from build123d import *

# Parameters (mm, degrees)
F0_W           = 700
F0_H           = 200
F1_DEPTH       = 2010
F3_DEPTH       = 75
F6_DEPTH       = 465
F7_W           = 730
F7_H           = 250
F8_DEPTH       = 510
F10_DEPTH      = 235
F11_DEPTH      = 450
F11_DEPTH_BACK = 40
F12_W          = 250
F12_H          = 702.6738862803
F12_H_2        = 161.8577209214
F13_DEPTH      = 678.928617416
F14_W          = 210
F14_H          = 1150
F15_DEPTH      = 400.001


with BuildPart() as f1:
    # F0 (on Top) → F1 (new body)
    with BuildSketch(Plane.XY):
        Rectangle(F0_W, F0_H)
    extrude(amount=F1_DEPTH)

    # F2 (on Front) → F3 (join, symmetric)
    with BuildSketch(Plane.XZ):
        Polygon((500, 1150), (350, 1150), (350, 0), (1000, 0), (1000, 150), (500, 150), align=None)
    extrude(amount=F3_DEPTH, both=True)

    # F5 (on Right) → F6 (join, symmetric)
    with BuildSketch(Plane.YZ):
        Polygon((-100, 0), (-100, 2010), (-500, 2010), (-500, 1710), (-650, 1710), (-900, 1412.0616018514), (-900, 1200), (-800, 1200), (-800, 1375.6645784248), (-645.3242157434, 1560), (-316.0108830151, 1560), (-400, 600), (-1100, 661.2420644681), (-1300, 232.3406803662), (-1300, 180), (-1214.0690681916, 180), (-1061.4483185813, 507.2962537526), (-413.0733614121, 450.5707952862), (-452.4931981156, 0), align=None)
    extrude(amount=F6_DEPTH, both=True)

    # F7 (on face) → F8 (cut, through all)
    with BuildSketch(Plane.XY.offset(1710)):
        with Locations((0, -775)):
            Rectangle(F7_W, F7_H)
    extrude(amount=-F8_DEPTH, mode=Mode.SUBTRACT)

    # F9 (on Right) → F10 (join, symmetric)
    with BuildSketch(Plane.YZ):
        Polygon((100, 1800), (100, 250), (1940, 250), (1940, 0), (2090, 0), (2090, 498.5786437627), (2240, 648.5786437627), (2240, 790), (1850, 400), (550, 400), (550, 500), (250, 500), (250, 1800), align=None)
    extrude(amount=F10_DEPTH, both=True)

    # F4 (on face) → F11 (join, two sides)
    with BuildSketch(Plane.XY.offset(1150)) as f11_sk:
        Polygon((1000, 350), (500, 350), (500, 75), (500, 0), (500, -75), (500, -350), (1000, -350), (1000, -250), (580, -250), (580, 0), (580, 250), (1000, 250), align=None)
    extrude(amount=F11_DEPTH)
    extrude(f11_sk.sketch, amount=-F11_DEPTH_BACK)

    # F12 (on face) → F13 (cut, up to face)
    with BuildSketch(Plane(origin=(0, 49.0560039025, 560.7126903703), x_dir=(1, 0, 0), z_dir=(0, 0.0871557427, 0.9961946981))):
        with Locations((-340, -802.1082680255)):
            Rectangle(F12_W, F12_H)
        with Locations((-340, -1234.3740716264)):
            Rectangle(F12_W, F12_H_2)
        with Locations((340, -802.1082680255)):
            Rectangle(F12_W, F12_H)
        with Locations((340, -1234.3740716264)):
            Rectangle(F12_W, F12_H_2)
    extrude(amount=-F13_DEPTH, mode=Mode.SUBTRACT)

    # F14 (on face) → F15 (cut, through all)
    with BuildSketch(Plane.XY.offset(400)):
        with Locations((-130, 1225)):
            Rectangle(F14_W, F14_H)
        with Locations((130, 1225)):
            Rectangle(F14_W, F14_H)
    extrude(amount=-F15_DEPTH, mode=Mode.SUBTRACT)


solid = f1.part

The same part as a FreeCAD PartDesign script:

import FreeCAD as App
import Part
import Sketcher
from FreeCAD import Vector
Q = App.Units.Quantity

doc = App.newDocument("Part")
body = doc.addObject("PartDesign::Body", "Body")

sketch1 = body.newObject("Sketcher::SketchObject", "Sketch")
sketch1.AttachmentSupport = (doc.getObject("XY_Plane"), [""])
sketch1.MapMode = "FlatFace"
sketch1.addGeometry([
    Part.LineSegment(Vector(-350, 100, 0), Vector(-350, -100, 0)),
    Part.LineSegment(Vector(-350, -100, 0), Vector(350, -100, 0)),
    Part.LineSegment(Vector(350, -100, 0), Vector(350, 100, 0)),
    Part.LineSegment(Vector(350, 100, 0), Vector(-350, 100, 0)),
], False)
sketch1.addConstraint([
    Sketcher.Constraint("Coincident", 0, 2, 1, 1),
    Sketcher.Constraint("Coincident", 1, 2, 2, 1),
    Sketcher.Constraint("Coincident", 2, 2, 3, 1),
    Sketcher.Constraint("Coincident", 3, 2, 0, 1),
    Sketcher.Constraint("Vertical", 0),
    Sketcher.Constraint("Horizontal", 1),
    Sketcher.Constraint("Vertical", 2),
    Sketcher.Constraint("Horizontal", 3),
    Sketcher.Constraint("Symmetric", 0, 2, 2, 2, -1, 1),
    Sketcher.Constraint("DistanceX", 1, 1, 1, 2, 700.0),
    Sketcher.Constraint("DistanceY", 0, 2, 0, 1, 200.0),
])
pad1 = body.newObject("PartDesign::Pad", "Pad")
pad1.Profile = sketch1
pad1.Length = 2010

sketch2 = body.newObject("Sketcher::SketchObject", "Sketch001")
sketch2.AttachmentSupport = (doc.getObject("XZ_Plane"), [""])
sketch2.MapMode = "FlatFace"
sketch2.addGeometry([
    Part.LineSegment(Vector(500, 1150, 0), Vector(350, 1150, 0)),
    Part.LineSegment(Vector(350, 1150, 0), Vector(350, 0, 0)),
    Part.LineSegment(Vector(350, 0, 0), Vector(1000, 0, 0)),
    Part.LineSegment(Vector(1000, 0, 0), Vector(1000, 150, 0)),
    Part.LineSegment(Vector(1000, 150, 0), Vector(500, 150, 0)),
    Part.LineSegment(Vector(500, 150, 0), Vector(500, 1150, 0)),
], False)
sketch2.addConstraint([
    Sketcher.Constraint("Coincident", 0, 2, 1, 1),
    Sketcher.Constraint("Coincident", 1, 2, 2, 1),
    Sketcher.Constraint("Coincident", 2, 2, 3, 1),
    Sketcher.Constraint("Coincident", 3, 2, 4, 1),
    Sketcher.Constraint("Coincident", 4, 2, 5, 1),
    Sketcher.Constraint("Coincident", 5, 2, 0, 1),
    Sketcher.Constraint("Horizontal", 0),
    Sketcher.Constraint("Vertical", 1),
    Sketcher.Constraint("Horizontal", 2),
    Sketcher.Constraint("Vertical", 3),
    Sketcher.Constraint("Horizontal", 4),
    Sketcher.Constraint("Vertical", 5),
    Sketcher.Constraint("PointOnObject", 1, 2, -1),
    Sketcher.Constraint("Equal", 0, 3),
    Sketcher.Constraint("DistanceX", 0, 2, 0, 1, 150.0),
    Sketcher.Constraint("DistanceX", 2, 1, 2, 2, 650.0),
    Sketcher.Constraint("DistanceY", 1, 2, 1, 1, 1150.0),
    Sketcher.Constraint("DistanceX", -1, 1, 0, 2, 350.0),
])
pad2 = body.newObject("PartDesign::Pad", "Pad001")
pad2.Profile = sketch2
pad2.Length = 150
pad2.Midplane = True

sketch3 = body.newObject("Sketcher::SketchObject", "Sketch002")
sketch3.AttachmentSupport = (doc.getObject("YZ_Plane"), [""])
sketch3.MapMode = "FlatFace"
sketch3.addGeometry([
    Part.LineSegment(Vector(-100, 0, 0), Vector(-100, 2010, 0)),
    Part.LineSegment(Vector(-100, 2010, 0), Vector(-500, 2010, 0)),
    Part.LineSegment(Vector(-500, 2010, 0), Vector(-500, 1710, 0)),
    Part.LineSegment(Vector(-500, 1710, 0), Vector(-650, 1710, 0)),
    Part.LineSegment(Vector(-650, 1710, 0), Vector(-900, 1412.061602, 0)),
    Part.LineSegment(Vector(-900, 1412.061602, 0), Vector(-900, 1200, 0)),
    Part.LineSegment(Vector(-900, 1200, 0), Vector(-800, 1200, 0)),
    Part.LineSegment(Vector(-800, 1200, 0), Vector(-800, 1375.664578, 0)),
    Part.LineSegment(Vector(-800, 1375.664578, 0), Vector(-645.324216, 1560, 0)),
    Part.LineSegment(Vector(-645.324216, 1560, 0), Vector(-316.010883, 1560, 0)),
    Part.LineSegment(Vector(-316.010883, 1560, 0), Vector(-400, 600, 0)),
    Part.LineSegment(Vector(-400, 600, 0), Vector(-1100, 661.242064, 0)),
    Part.LineSegment(Vector(-1100, 661.242064, 0), Vector(-1300, 232.34068, 0)),
    Part.LineSegment(Vector(-1300, 232.34068, 0), Vector(-1300, 180, 0)),
    Part.LineSegment(Vector(-1300, 180, 0), Vector(-1214.069068, 180, 0)),
    Part.LineSegment(Vector(-1214.069068, 180, 0), Vector(-1061.448319, 507.296254, 0)),
    Part.LineSegment(Vector(-1061.448319, 507.296254, 0), Vector(-413.073361, 450.570795, 0)),
    Part.LineSegment(Vector(-413.073361, 450.570795, 0), Vector(-452.493198, 0, 0)),
    Part.LineSegment(Vector(-452.493198, 0, 0), Vector(-100, 0, 0)),
], False)
sketch3.addConstraint([
    Sketcher.Constraint("Coincident", 0, 2, 1, 1),
    Sketcher.Constraint("Coincident", 1, 2, 2, 1),
    Sketcher.Constraint("Coincident", 2, 2, 3, 1),
    Sketcher.Constraint("Coincident", 3, 2, 4, 1),
    Sketcher.Constraint("Coincident", 4, 2, 5, 1),
    Sketcher.Constraint("Coincident", 5, 2, 6, 1),
    Sketcher.Constraint("Coincident", 6, 2, 7, 1),
    Sketcher.Constraint("Coincident", 7, 2, 8, 1),
    Sketcher.Constraint("Coincident", 8, 2, 9, 1),
    Sketcher.Constraint("Coincident", 9, 2, 10, 1),
    Sketcher.Constraint("Coincident", 10, 2, 11, 1),
    Sketcher.Constraint("Coincident", 11, 2, 12, 1),
    Sketcher.Constraint("Coincident", 12, 2, 13, 1),
    Sketcher.Constraint("Coincident", 13, 2, 14, 1),
    Sketcher.Constraint("Coincident", 14, 2, 15, 1),
    Sketcher.Constraint("Coincident", 15, 2, 16, 1),
    Sketcher.Constraint("Coincident", 16, 2, 17, 1),
    Sketcher.Constraint("Coincident", 17, 2, 18, 1),
    Sketcher.Constraint("Coincident", 18, 2, 0, 1),
    Sketcher.Constraint("Vertical", 0),
    Sketcher.Constraint("Horizontal", 1),
    Sketcher.Constraint("Vertical", 2),
    Sketcher.Constraint("Horizontal", 3),
    Sketcher.Constraint("Vertical", 5),
    Sketcher.Constraint("Horizontal", 6),
    Sketcher.Constraint("Vertical", 7),
    Sketcher.Constraint("Horizontal", 9),
    Sketcher.Constraint("Vertical", 13),
    Sketcher.Constraint("Horizontal", 14),
    Sketcher.Constraint("Horizontal", 18),
    Sketcher.Constraint("PointOnObject", 17, 2, -1),
    Sketcher.Constraint("Parallel", 4, 8),
    Sketcher.Constraint("Perpendicular", 10, 11),
    Sketcher.Constraint("Parallel", 12, 15),
    Sketcher.Constraint("Parallel", 11, 16),
    Sketcher.Constraint("Perpendicular", 16, 17),
    Sketcher.Constraint("DistanceX", 1, 2, 1, 1, 400.0),
    Sketcher.Constraint("DistanceX", 3, 2, 3, 1, 150.0),
    Sketcher.Constraint("DistanceX", 6, 1, 6, 2, 100.0),
    Sketcher.Constraint("DistanceY", 0, 1, 0, 2, 2010.0),
    Sketcher.Constraint("DistanceY", 2, 2, 2, 1, 300.0),
    Sketcher.Constraint("Angle", 4, Q("-130 deg")),
    Sketcher.Constraint("Angle", 10, Q("-95 deg")),
    Sketcher.Constraint("Angle", 12, Q("-115 deg")),
    Sketcher.Constraint("DistanceX", 0, 2, -1, 1, 100.0),
    Sketcher.Constraint("DistanceX", 4, 2, -1, 1, 900.0),
    Sketcher.Constraint("DistanceY", -1, 1, 5, 2, 1200.0),
    Sketcher.Constraint("DistanceY", -1, 1, 8, 2, 1560.0),
    Sketcher.Constraint("DistanceX", 10, 2, -1, 1, 400.0),
    Sketcher.Constraint("DistanceY", -1, 1, 10, 2, 600.0),
    Sketcher.Constraint("DistanceX", 11, 2, -1, 1, 1100.0),
    Sketcher.Constraint("DistanceX", 12, 2, -1, 1, 1300.0),
    Sketcher.Constraint("DistanceY", -1, 1, 13, 2, 180.0),
    Sketcher.Constraint("DistanceX", 18, 1, 18, 2, 352.493198),
    Sketcher.Constraint("DistanceX", 14, 1, 14, 2, 85.930932),
    Sketcher.Constraint("DistanceY", 7, 1, 7, 2, 175.664578),
    Sketcher.Constraint("Distance", 15, 361.131459),
])
pad3 = body.newObject("PartDesign::Pad", "Pad002")
pad3.Profile = sketch3
pad3.Length = 930
pad3.Midplane = True

sketch4 = body.newObject("Sketcher::SketchObject", "Sketch003")
sketch4.AttachmentSupport = (doc.getObject("XY_Plane"), [""])
sketch4.MapMode = "FlatFace"
sketch4.AttachmentOffset = App.Placement(Vector(0, 0, 1710), App.Rotation())
sketch4.addGeometry([
    Part.LineSegment(Vector(-365, -650, 0), Vector(-365, -900, 0)),
    Part.LineSegment(Vector(-365, -900, 0), Vector(365, -900, 0)),
    Part.LineSegment(Vector(365, -900, 0), Vector(365, -650, 0)),
    Part.LineSegment(Vector(365, -650, 0), Vector(-365, -650, 0)),
], False)
sketch4.addConstraint([
    Sketcher.Constraint("Coincident", 0, 2, 1, 1),
    Sketcher.Constraint("Coincident", 1, 2, 2, 1),
    Sketcher.Constraint("Coincident", 2, 2, 3, 1),
    Sketcher.Constraint("Coincident", 3, 2, 0, 1),
    Sketcher.Constraint("Vertical", 0),
    Sketcher.Constraint("Horizontal", 1),
    Sketcher.Constraint("Vertical", 2),
    Sketcher.Constraint("Horizontal", 3),
    Sketcher.Constraint("DistanceX", 1, 1, 1, 2, 730.0),
    Sketcher.Constraint("DistanceY", 0, 2, 0, 1, 250.0),
    Sketcher.Constraint("DistanceX", 0, 2, -1, 1, 365.0),
    Sketcher.Constraint("DistanceY", 0, 2, -1, 1, 900.0),
])
pocket1 = body.newObject("PartDesign::Pocket", "Pocket")
pocket1.Profile = sketch4
pocket1.Length = 510

sketch5 = body.newObject("Sketcher::SketchObject", "Sketch004")
sketch5.AttachmentSupport = (doc.getObject("YZ_Plane"), [""])
sketch5.MapMode = "FlatFace"
sketch5.addGeometry([
    Part.LineSegment(Vector(100, 1800, 0), Vector(100, 250, 0)),
    Part.LineSegment(Vector(100, 250, 0), Vector(1940, 250, 0)),
    Part.LineSegment(Vector(1940, 250, 0), Vector(1940, 0, 0)),
    Part.LineSegment(Vector(1940, 0, 0), Vector(2090, 0, 0)),
    Part.LineSegment(Vector(2090, 0, 0), Vector(2090, 498.578644, 0)),
    Part.LineSegment(Vector(2090, 498.578644, 0), Vector(2240, 648.578644, 0)),
    Part.LineSegment(Vector(2240, 648.578644, 0), Vector(2240, 790, 0)),
    Part.LineSegment(Vector(2240, 790, 0), Vector(1850, 400, 0)),
    Part.LineSegment(Vector(1850, 400, 0), Vector(550, 400, 0)),
    Part.LineSegment(Vector(550, 400, 0), Vector(550, 500, 0)),
    Part.LineSegment(Vector(550, 500, 0), Vector(250, 500, 0)),
    Part.LineSegment(Vector(250, 500, 0), Vector(250, 1800, 0)),
    Part.LineSegment(Vector(250, 1800, 0), Vector(100, 1800, 0)),
], False)
sketch5.addConstraint([
    Sketcher.Constraint("Coincident", 0, 2, 1, 1),
    Sketcher.Constraint("Coincident", 1, 2, 2, 1),
    Sketcher.Constraint("Coincident", 2, 2, 3, 1),
    Sketcher.Constraint("Coincident", 3, 2, 4, 1),
    Sketcher.Constraint("Coincident", 4, 2, 5, 1),
    Sketcher.Constraint("Coincident", 5, 2, 6, 1),
    Sketcher.Constraint("Coincident", 6, 2, 7, 1),
    Sketcher.Constraint("Coincident", 7, 2, 8, 1),
    Sketcher.Constraint("Coincident", 8, 2, 9, 1),
    Sketcher.Constraint("Coincident", 9, 2, 10, 1),
    Sketcher.Constraint("Coincident", 10, 2, 11, 1),
    Sketcher.Constraint("Coincident", 11, 2, 12, 1),
    Sketcher.Constraint("Coincident", 12, 2, 0, 1),
    Sketcher.Constraint("Vertical", 0),
    Sketcher.Constraint("Horizontal", 1),
    Sketcher.Constraint("Vertical", 2),
    Sketcher.Constraint("Horizontal", 3),
    Sketcher.Constraint("Vertical", 4),
    Sketcher.Constraint("Vertical", 6),
    Sketcher.Constraint("Horizontal", 8),
    Sketcher.Constraint("Vertical", 9),
    Sketcher.Constraint("Horizontal", 10),
    Sketcher.Constraint("Vertical", 11),
    Sketcher.Constraint("Horizontal", 12),
    Sketcher.Constraint("PointOnObject", 2, 2, -1),
    Sketcher.Constraint("Parallel", 5, 7),
    Sketcher.Constraint("Equal", 3, 12),
    Sketcher.Constraint("Equal", 8, 11),
    Sketcher.Constraint("DistanceX", 1, 1, 1, 2, 1840.0),
    Sketcher.Constraint("DistanceX", 3, 1, 3, 2, 150.0),
    Sketcher.Constraint("DistanceX", 8, 2, 8, 1, 1300.0),
    Sketcher.Constraint("DistanceX", 10, 2, 10, 1, 300.0),
    Sketcher.Constraint("DistanceY", 0, 2, 0, 1, 1550.0),
    Sketcher.Constraint("DistanceY", 2, 2, 2, 1, 250.0),
    Sketcher.Constraint("DistanceY", 9, 1, 9, 2, 100.0),
    Sketcher.Constraint("Angle", 5, Q("45 deg")),
    Sketcher.Constraint("DistanceX", -1, 1, 0, 2, 100.0),
    Sketcher.Constraint("DistanceX", -1, 1, 5, 2, 2240.0),
    Sketcher.Constraint("DistanceY", 4, 1, 4, 2, 498.578644),
])
pad4 = body.newObject("PartDesign::Pad", "Pad003")
pad4.Profile = sketch5
pad4.Length = 470
pad4.Midplane = True

sketch6 = body.newObject("Sketcher::SketchObject", "Sketch005")
sketch6.AttachmentSupport = (doc.getObject("XY_Plane"), [""])
sketch6.MapMode = "FlatFace"
sketch6.AttachmentOffset = App.Placement(Vector(0, 0, 1150), App.Rotation())
sketch6.addGeometry([
    Part.LineSegment(Vector(1000, 350, 0), Vector(500, 350, 0)),
    Part.LineSegment(Vector(500, 350, 0), Vector(500, -350, 0)),
    Part.LineSegment(Vector(500, -350, 0), Vector(1000, -350, 0)),
    Part.LineSegment(Vector(1000, -350, 0), Vector(1000, -250, 0)),
    Part.LineSegment(Vector(1000, -250, 0), Vector(580, -250, 0)),
    Part.LineSegment(Vector(580, -250, 0), Vector(580, 250, 0)),
    Part.LineSegment(Vector(580, 250, 0), Vector(1000, 250, 0)),
    Part.LineSegment(Vector(1000, 250, 0), Vector(1000, 350, 0)),
], False)
sketch6.addConstraint([
    Sketcher.Constraint("Coincident", 0, 2, 1, 1),
    Sketcher.Constraint("Coincident", 1, 2, 2, 1),
    Sketcher.Constraint("Coincident", 2, 2, 3, 1),
    Sketcher.Constraint("Coincident", 3, 2, 4, 1),
    Sketcher.Constraint("Coincident", 4, 2, 5, 1),
    Sketcher.Constraint("Coincident", 5, 2, 6, 1),
    Sketcher.Constraint("Coincident", 6, 2, 7, 1),
    Sketcher.Constraint("Coincident", 7, 2, 0, 1),
    Sketcher.Constraint("Horizontal", 0),
    Sketcher.Constraint("Vertical", 1),
    Sketcher.Constraint("Horizontal", 2),
    Sketcher.Constraint("Vertical", 3),
    Sketcher.Constraint("Horizontal", 4),
    Sketcher.Constraint("Vertical", 5),
    Sketcher.Constraint("Horizontal", 6),
    Sketcher.Constraint("Vertical", 7),
    Sketcher.Constraint("Symmetric", 3, 2, 6, 2, -1),
    Sketcher.Constraint("Equal", 2, 5),
    Sketcher.Constraint("Equal", 3, 7),
    Sketcher.Constraint("DistanceX", 0, 2, 0, 1, 500.0),
    Sketcher.Constraint("DistanceX", 4, 2, 4, 1, 420.0),
    Sketcher.Constraint("DistanceY", 1, 2, 1, 1, 700.0),
    Sketcher.Constraint("DistanceX", -1, 1, 0, 2, 500.0),
])
pad5 = body.newObject("PartDesign::Pad", "Pad004")
pad5.Profile = sketch6
pad5.Type = "TwoLengths"
pad5.Length = 450
pad5.Length2 = 40

sketch7 = body.newObject("Sketcher::SketchObject", "Sketch006")
sketch7.Placement = App.Placement(Vector(0, 49.056004, 560.71269), App.Rotation(Vector(1, 0, 0), Vector(0, 0.996194698, -0.087155743), Vector(0, 0.087155743, 0.996194698), "ZXY"))
sketch7.addGeometry([
    Part.LineSegment(Vector(-465, -450.771325, 0), Vector(-465, -1315.302932, 0)),
    Part.LineSegment(Vector(-465, -1315.302932, 0), Vector(-215, -1315.302932, 0)),
    Part.LineSegment(Vector(-215, -1315.302932, 0), Vector(-215, -450.771325, 0)),
    Part.LineSegment(Vector(-215, -450.771325, 0), Vector(-465, -450.771325, 0)),
    Part.LineSegment(Vector(215, -450.771325, 0), Vector(215, -1315.302932, 0)),
    Part.LineSegment(Vector(215, -1315.302932, 0), Vector(465, -1315.302932, 0)),
    Part.LineSegment(Vector(465, -1315.302932, 0), Vector(465, -450.771325, 0)),
    Part.LineSegment(Vector(465, -450.771325, 0), Vector(215, -450.771325, 0)),
], False)
sketch7.addConstraint([
    Sketcher.Constraint("Coincident", 0, 2, 1, 1),
    Sketcher.Constraint("Coincident", 1, 2, 2, 1),
    Sketcher.Constraint("Coincident", 2, 2, 3, 1),
    Sketcher.Constraint("Coincident", 3, 2, 0, 1),
    Sketcher.Constraint("Coincident", 4, 2, 5, 1),
    Sketcher.Constraint("Coincident", 5, 2, 6, 1),
    Sketcher.Constraint("Coincident", 6, 2, 7, 1),
    Sketcher.Constraint("Coincident", 7, 2, 4, 1),
    Sketcher.Constraint("Vertical", 0),
    Sketcher.Constraint("Horizontal", 1),
    Sketcher.Constraint("Vertical", 2),
    Sketcher.Constraint("Horizontal", 3),
    Sketcher.Constraint("Vertical", 4),
    Sketcher.Constraint("Horizontal", 5),
    Sketcher.Constraint("Vertical", 6),
    Sketcher.Constraint("Horizontal", 7),
    Sketcher.Constraint("Symmetric", 1, 2, 4, 2, -2),
    Sketcher.Constraint("Symmetric", 3, 2, 6, 2, -2),
    Sketcher.Constraint("DistanceX", 1, 1, 1, 2, 250.0),
    Sketcher.Constraint("DistanceX", 0, 2, -1, 1, 465.0),
    Sketcher.Constraint("DistanceY", 0, 2, 0, 1, 864.531607),
    Sketcher.Constraint("DistanceY", 0, 2, -1, 1, 1315.302932),
])
pocket2 = body.newObject("PartDesign::Pocket", "Pocket001")
pocket2.Profile = sketch7
pocket2.Length = 678.928617

sketch8 = body.newObject("Sketcher::SketchObject", "Sketch007")
sketch8.AttachmentSupport = (doc.getObject("XY_Plane"), [""])
sketch8.MapMode = "FlatFace"
sketch8.AttachmentOffset = App.Placement(Vector(0, 0, 400), App.Rotation())
sketch8.addGeometry([
    Part.LineSegment(Vector(-235, 1800, 0), Vector(-235, 650, 0)),
    Part.LineSegment(Vector(-235, 650, 0), Vector(-25, 650, 0)),
    Part.LineSegment(Vector(-25, 650, 0), Vector(-25, 1800, 0)),
    Part.LineSegment(Vector(-25, 1800, 0), Vector(-235, 1800, 0)),
    Part.LineSegment(Vector(25, 1800, 0), Vector(25, 650, 0)),
    Part.LineSegment(Vector(25, 650, 0), Vector(235, 650, 0)),
    Part.LineSegment(Vector(235, 650, 0), Vector(235, 1800, 0)),
    Part.LineSegment(Vector(235, 1800, 0), Vector(25, 1800, 0)),
], False)
sketch8.addConstraint([
    Sketcher.Constraint("Coincident", 0, 2, 1, 1),
    Sketcher.Constraint("Coincident", 1, 2, 2, 1),
    Sketcher.Constraint("Coincident", 2, 2, 3, 1),
    Sketcher.Constraint("Coincident", 3, 2, 0, 1),
    Sketcher.Constraint("Coincident", 4, 2, 5, 1),
    Sketcher.Constraint("Coincident", 5, 2, 6, 1),
    Sketcher.Constraint("Coincident", 6, 2, 7, 1),
    Sketcher.Constraint("Coincident", 7, 2, 4, 1),
    Sketcher.Constraint("Vertical", 0),
    Sketcher.Constraint("Horizontal", 1),
    Sketcher.Constraint("Vertical", 2),
    Sketcher.Constraint("Horizontal", 3),
    Sketcher.Constraint("Vertical", 4),
    Sketcher.Constraint("Horizontal", 5),
    Sketcher.Constraint("Vertical", 6),
    Sketcher.Constraint("Horizontal", 7),
    Sketcher.Constraint("Symmetric", 1, 2, 4, 2, -2),
    Sketcher.Constraint("Symmetric", 3, 2, 6, 2, -2),
    Sketcher.Constraint("DistanceX", 1, 1, 1, 2, 210.0),
    Sketcher.Constraint("DistanceY", 0, 2, 0, 1, 1150.0),
    Sketcher.Constraint("DistanceX", 0, 2, -1, 1, 235.0),
    Sketcher.Constraint("DistanceY", -1, 1, 0, 2, 650.0),
])
pocket3 = body.newObject("PartDesign::Pocket", "Pocket002")
pocket3.Profile = sketch8
pocket3.Type = "ThroughAll"

doc.recompute()
